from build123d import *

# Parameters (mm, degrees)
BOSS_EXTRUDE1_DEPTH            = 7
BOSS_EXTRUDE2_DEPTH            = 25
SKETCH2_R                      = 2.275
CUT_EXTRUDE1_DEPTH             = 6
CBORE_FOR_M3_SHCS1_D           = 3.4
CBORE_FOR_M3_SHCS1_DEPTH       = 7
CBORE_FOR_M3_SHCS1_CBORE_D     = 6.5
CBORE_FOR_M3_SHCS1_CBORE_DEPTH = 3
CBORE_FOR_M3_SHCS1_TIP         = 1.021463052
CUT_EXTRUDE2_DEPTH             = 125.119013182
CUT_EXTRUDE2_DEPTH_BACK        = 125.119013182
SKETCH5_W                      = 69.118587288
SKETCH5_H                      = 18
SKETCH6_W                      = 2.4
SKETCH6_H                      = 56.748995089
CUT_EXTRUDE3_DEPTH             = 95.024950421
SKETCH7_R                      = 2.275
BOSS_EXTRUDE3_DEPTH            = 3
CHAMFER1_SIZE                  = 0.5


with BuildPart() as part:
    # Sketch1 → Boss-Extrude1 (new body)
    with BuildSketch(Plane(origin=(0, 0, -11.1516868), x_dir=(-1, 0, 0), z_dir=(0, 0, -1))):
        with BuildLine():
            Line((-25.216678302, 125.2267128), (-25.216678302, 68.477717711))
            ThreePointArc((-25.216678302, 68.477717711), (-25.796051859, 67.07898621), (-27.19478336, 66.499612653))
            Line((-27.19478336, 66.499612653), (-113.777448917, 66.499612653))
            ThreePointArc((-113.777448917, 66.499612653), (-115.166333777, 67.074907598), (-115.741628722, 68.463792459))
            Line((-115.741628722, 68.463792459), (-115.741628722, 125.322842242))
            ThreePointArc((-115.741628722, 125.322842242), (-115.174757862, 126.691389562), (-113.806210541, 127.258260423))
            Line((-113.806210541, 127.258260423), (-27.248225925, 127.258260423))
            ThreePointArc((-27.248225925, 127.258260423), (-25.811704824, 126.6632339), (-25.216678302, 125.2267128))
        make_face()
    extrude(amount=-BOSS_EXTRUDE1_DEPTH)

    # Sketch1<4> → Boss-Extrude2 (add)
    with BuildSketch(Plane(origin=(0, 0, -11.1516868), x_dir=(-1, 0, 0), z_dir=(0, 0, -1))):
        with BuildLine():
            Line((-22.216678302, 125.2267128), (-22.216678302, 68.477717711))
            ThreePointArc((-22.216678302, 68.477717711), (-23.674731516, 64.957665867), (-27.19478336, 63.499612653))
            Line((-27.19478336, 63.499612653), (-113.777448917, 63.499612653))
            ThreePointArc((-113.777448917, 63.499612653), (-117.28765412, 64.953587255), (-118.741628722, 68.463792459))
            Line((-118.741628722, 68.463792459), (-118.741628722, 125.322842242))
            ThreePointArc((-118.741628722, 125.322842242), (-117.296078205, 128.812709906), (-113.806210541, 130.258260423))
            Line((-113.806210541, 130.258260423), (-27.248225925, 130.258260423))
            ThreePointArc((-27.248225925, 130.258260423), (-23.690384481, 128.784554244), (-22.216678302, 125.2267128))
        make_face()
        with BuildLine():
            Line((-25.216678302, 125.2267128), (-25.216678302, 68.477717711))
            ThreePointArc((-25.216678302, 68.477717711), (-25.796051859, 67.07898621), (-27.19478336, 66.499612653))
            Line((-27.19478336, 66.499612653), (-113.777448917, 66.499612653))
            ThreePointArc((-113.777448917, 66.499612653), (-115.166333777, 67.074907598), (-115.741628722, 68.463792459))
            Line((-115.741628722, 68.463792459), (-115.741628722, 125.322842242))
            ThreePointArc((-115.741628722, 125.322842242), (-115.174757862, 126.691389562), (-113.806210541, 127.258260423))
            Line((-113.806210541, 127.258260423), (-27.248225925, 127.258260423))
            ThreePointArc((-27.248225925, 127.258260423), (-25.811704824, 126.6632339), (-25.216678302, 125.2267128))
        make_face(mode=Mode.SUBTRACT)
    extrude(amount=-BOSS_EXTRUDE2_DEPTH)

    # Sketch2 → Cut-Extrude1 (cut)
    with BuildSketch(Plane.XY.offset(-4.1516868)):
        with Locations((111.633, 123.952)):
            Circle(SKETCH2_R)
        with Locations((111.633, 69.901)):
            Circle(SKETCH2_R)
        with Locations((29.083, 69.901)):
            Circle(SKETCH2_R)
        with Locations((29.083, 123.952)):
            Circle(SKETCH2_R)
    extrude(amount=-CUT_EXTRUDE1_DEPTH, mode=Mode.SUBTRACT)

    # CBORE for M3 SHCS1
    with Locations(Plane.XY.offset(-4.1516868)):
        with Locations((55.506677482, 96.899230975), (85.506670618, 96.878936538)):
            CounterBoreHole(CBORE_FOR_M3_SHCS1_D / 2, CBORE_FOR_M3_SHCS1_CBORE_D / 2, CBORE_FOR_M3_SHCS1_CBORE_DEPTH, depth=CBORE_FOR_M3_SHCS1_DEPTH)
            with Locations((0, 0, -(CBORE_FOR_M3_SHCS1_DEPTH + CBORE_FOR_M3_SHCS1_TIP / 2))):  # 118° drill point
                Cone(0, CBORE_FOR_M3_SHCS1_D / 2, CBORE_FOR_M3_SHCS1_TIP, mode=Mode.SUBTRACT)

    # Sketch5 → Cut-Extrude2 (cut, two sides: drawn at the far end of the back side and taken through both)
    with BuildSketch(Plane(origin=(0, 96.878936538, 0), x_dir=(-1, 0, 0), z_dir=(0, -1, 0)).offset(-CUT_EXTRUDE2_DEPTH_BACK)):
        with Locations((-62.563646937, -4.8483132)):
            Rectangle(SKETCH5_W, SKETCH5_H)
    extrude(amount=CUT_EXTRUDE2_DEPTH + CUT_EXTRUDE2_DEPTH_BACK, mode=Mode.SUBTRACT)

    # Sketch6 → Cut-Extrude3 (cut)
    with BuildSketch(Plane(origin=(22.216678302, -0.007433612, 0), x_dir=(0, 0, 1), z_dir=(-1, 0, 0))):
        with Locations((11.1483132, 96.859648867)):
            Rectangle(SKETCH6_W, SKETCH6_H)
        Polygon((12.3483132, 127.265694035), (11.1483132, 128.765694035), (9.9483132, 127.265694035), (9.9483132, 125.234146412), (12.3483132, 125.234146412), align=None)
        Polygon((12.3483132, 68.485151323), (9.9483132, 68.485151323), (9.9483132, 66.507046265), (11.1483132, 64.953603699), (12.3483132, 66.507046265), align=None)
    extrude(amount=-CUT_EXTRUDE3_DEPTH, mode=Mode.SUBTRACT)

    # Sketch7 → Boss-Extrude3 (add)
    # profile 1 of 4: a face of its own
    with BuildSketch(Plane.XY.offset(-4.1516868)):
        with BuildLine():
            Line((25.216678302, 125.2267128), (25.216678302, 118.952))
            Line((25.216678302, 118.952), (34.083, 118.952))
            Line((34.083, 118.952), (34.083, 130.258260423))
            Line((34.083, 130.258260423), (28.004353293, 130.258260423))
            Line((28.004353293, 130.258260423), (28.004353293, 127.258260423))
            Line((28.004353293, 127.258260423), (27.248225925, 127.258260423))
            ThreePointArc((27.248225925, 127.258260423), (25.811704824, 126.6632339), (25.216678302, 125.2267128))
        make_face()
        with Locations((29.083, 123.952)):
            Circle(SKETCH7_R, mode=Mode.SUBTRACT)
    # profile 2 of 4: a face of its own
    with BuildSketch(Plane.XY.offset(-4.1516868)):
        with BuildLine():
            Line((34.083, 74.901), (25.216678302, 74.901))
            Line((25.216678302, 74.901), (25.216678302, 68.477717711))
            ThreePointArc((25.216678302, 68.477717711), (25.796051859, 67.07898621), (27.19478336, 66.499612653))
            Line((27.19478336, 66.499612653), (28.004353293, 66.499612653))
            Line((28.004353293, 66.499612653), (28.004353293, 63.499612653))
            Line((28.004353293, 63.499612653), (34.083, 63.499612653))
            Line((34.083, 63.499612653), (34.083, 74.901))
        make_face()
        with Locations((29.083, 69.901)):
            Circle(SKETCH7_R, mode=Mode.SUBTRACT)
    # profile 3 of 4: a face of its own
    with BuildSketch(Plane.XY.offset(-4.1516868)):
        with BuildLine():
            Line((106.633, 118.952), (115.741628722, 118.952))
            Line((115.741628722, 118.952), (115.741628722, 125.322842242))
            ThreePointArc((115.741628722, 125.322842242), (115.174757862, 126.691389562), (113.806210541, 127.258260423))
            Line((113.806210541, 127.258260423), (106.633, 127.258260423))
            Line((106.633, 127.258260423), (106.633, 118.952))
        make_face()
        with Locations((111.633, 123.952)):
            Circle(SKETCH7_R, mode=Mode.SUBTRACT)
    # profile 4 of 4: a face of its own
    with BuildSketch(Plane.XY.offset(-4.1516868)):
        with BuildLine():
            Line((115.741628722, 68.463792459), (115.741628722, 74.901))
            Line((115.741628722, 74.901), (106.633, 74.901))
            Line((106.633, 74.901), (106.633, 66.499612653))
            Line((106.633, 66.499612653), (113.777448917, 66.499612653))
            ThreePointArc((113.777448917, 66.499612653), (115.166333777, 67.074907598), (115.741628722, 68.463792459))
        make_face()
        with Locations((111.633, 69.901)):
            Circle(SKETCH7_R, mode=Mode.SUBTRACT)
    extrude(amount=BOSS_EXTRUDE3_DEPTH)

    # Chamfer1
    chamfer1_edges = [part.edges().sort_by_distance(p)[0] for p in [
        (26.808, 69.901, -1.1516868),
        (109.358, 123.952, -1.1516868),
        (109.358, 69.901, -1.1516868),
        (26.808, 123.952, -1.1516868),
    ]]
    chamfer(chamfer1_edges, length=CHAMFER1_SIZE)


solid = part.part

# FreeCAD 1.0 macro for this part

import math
import FreeCAD as App
import Part
import Sketcher
from FreeCAD import Vector


def edges_at(feature, points):
    """Names of the edges that pass closest to the given points."""
    edges = feature.Shape.Edges
    near = lambda p: min(range(len(edges)), key=lambda i: edges[i].distToShape(Part.Vertex(*p))[0])
    return sorted({f"Edge{near(p) + 1}" for p in points})

doc = App.newDocument("Part")
body = doc.addObject("PartDesign::Body", "Body")

sketch1 = doc.addObject("Sketcher::SketchObject", "Sketch")
body.addObject(sketch1)
sketch1.AttachmentSupport = (doc.XY_Plane, [""])
sketch1.MapMode = "FlatFace"
sketch1.AttachmentOffset = App.Placement(Vector(0, 0, -11.151687), App.Rotation())
sketch1.addGeometry([
    Part.LineSegment(Vector(25.2, 68.5, 0), Vector(25.2, 125.2, 0)),
    Part.ArcOfCircle(Part.Circle(Vector(27.2, 125.2, 0), Vector(0, 0, 1), 2), math.radians(90), math.radians(180)),
    Part.LineSegment(Vector(27.2, 127.3, 0), Vector(113.8, 127.3, 0)),
    Part.ArcOfCircle(Part.Circle(Vector(113.8, 125.3, 0), Vector(0, 0, 1), 1.9), math.radians(0), math.radians(90)),
    Part.LineSegment(Vector(115.7, 125.3, 0), Vector(115.7, 68.5, 0)),
    Part.ArcOfCircle(Part.Circle(Vector(113.8, 68.5, 0), Vector(0, 0, 1), 2), math.radians(-90), math.radians(0)),
    Part.LineSegment(Vector(113.8, 66.5, 0), Vector(27.2, 66.5, 0)),
    Part.ArcOfCircle(Part.Circle(Vector(27.2, 68.5, 0), Vector(0, 0, 1), 2), math.radians(180), math.radians(270)),
], False)
sketch1.addConstraint([
    Sketcher.Constraint("Tangent", 0, 2, 1, 2),
    Sketcher.Constraint("Tangent", 1, 1, 2, 1),
    Sketcher.Constraint("Tangent", 2, 2, 3, 2),
    Sketcher.Constraint("Tangent", 3, 1, 4, 1),
    Sketcher.Constraint("Tangent", 4, 2, 5, 2),
    Sketcher.Constraint("Tangent", 5, 1, 6, 1),
    Sketcher.Constraint("Tangent", 6, 2, 7, 2),
    Sketcher.Constraint("Tangent", 7, 1, 0, 1),
    Sketcher.Constraint("Vertical", 0),
    Sketcher.Constraint("Horizontal", 2),
    Sketcher.Constraint("Vertical", 4),
    Sketcher.Constraint("Horizontal", 6),
    Sketcher.Constraint("Radius", 3, 1.935418),
    Sketcher.Constraint("Radius", 5, 1.96418),
    Sketcher.Constraint("Radius", 1, 2.031548),
    Sketcher.Constraint("Radius", 7, 1.978105),
    Sketcher.Constraint("DistanceY", 4, 2, 4, 1, 56.85905),
    Sketcher.Constraint("DistanceX", 2, 1, 2, 2, 86.557985),
    Sketcher.Constraint("DistanceX", -1, 1, 3, 3, 113.806211),
    Sketcher.Constraint("DistanceY", -1, 1, 1, 1, 127.25826),
])
pad1 = doc.addObject("PartDesign::Pad", "Pad")
body.addObject(pad1)
pad1.Profile = sketch1
pad1.Length = 7

sketch2 = doc.addObject("Sketcher::SketchObject", "Sketch001")
body.addObject(sketch2)
sketch2.AttachmentSupport = (doc.XY_Plane, [""])
sketch2.MapMode = "FlatFace"
sketch2.AttachmentOffset = App.Placement(Vector(0, 0, -11.151687), App.Rotation())
sketch2.addGeometry([
    Part.LineSegment(Vector(22.2, 68.5, 0), Vector(22.2, 125.2, 0)),
    Part.ArcOfCircle(Part.Circle(Vector(27.2, 125.2, 0), Vector(0, 0, 1), 5), math.radians(90), math.radians(180)),
    Part.LineSegment(Vector(27.2, 130.3, 0), Vector(113.8, 130.3, 0)),
    Part.ArcOfCircle(Part.Circle(Vector(113.8, 125.3, 0), Vector(0, 0, 1), 4.9), math.radians(0), math.radians(90)),
    Part.LineSegment(Vector(118.7, 125.3, 0), Vector(118.7, 68.5, 0)),
    Part.ArcOfCircle(Part.Circle(Vector(113.8, 68.5, 0), Vector(0, 0, 1), 5), math.radians(-90), math.radians(0)),
    Part.LineSegment(Vector(113.8, 63.5, 0), Vector(27.2, 63.5, 0)),
    Part.ArcOfCircle(Part.Circle(Vector(27.2, 68.5, 0), Vector(0, 0, 1), 5), math.radians(180), math.radians(270)),
    Part.LineSegment(Vector(25.2, 125.2, 0), Vector(25.2, 68.5, 0)),
    Part.ArcOfCircle(Part.Circle(Vector(27.2, 68.5, 0), Vector(0, 0, 1), 2), math.radians(180), math.radians(270)),
    Part.LineSegment(Vector(27.2, 66.5, 0), Vector(113.8, 66.5, 0)),
    Part.ArcOfCircle(Part.Circle(Vector(113.8, 68.5, 0), Vector(0, 0, 1), 2), math.radians(-90), math.radians(0)),
    Part.LineSegment(Vector(115.7, 68.5, 0), Vector(115.7, 125.3, 0)),
    Part.ArcOfCircle(Part.Circle(Vector(113.8, 125.3, 0), Vector(0, 0, 1), 1.9), math.radians(0), math.radians(90)),
    Part.LineSegment(Vector(113.8, 127.3, 0), Vector(27.2, 127.3, 0)),
    Part.ArcOfCircle(Part.Circle(Vector(27.2, 125.2, 0), Vector(0, 0, 1), 2), math.radians(90), math.radians(180)),
], False)
sketch2.addConstraint([
    Sketcher.Constraint("Tangent", 0, 2, 1, 2),
    Sketcher.Constraint("Tangent", 1, 1, 2, 1),
    Sketcher.Constraint("Tangent", 2, 2, 3, 2),
    Sketcher.Constraint("Tangent", 3, 1, 4, 1),
    Sketcher.Constraint("Tangent", 4, 2, 5, 2),
    Sketcher.Constraint("Tangent", 5, 1, 6, 1),
    Sketcher.Constraint("Tangent", 6, 2, 7, 2),
    Sketcher.Constraint("Tangent", 7, 1, 0, 1),
    Sketcher.Constraint("Tangent", 8, 2, 9, 1),
    Sketcher.Constraint("Tangent", 9, 2, 10, 1),
    Sketcher.Constraint("Tangent", 10, 2, 11, 1),
    Sketcher.Constraint("Tangent", 11, 2, 12, 1),
    Sketcher.Constraint("Tangent", 12, 2, 13, 1),
    Sketcher.Constraint("Tangent", 13, 2, 14, 1),
    Sketcher.Constraint("Tangent", 14, 2, 15, 1),
    Sketcher.Constraint("Tangent", 15, 2, 8, 1),
    Sketcher.Constraint("Vertical", 0),
    Sketcher.Constraint("Horizontal", 2),
    Sketcher.Constraint("Vertical", 4),
    Sketcher.Constraint("Horizontal", 6),
    Sketcher.Constraint("Vertical", 8),
    Sketcher.Constraint("Horizontal", 10),
    Sketcher.Constraint("Vertical", 12),
    Sketcher.Constraint("Horizontal", 14),
    Sketcher.Constraint("Coincident", 9, 3, 7, 3),
    Sketcher.Constraint("Coincident", 11, 3, 5, 3),
    Sketcher.Constraint("Coincident", 13, 3, 3, 3),
    Sketcher.Constraint("Horizontal", 15, 3, 0, 2),
    Sketcher.Constraint("DistanceX", 7, 1, 8, 2, 3.0),
    Sketcher.Constraint("Radius", 3, 4.935418),
    Sketcher.Constraint("Radius", 5, 4.96418),
    Sketcher.Constraint("Radius", 1, 5.031548),
    Sketcher.Constraint("Radius", 7, 4.978105),
    Sketcher.Constraint("DistanceY", 4, 2, 4, 1, 56.85905),
    Sketcher.Constraint("DistanceX", 2, 1, 2, 2, 86.557985),
    Sketcher.Constraint("DistanceX", -1, 1, 3, 3, 113.806211),
    Sketcher.Constraint("DistanceY", -1, 1, 1, 1, 130.25826),
])
pad2 = doc.addObject("PartDesign::Pad", "Pad001")
body.addObject(pad2)
pad2.Profile = sketch2
pad2.Length = 25

sketch3 = doc.addObject("Sketcher::SketchObject", "Sketch002")
body.addObject(sketch3)
sketch3.AttachmentSupport = (doc.XY_Plane, [""])
sketch3.MapMode = "FlatFace"
sketch3.AttachmentOffset = App.Placement(Vector(0, 0, -4.151687), App.Rotation())
sketch3.addGeometry([
    Part.Circle(Vector(111.6, 124, 0), Vector(0, 0, 1), 2.3),
    Part.Circle(Vector(111.6, 69.9, 0), Vector(0, 0, 1), 2.3),
    Part.Circle(Vector(29.1, 69.9, 0), Vector(0, 0, 1), 2.3),
    Part.Circle(Vector(29.1, 124, 0), Vector(0, 0, 1), 2.3),
], False)
sketch3.addConstraint([
    Sketcher.Constraint("Equal", 0, 1),
    Sketcher.Constraint("Equal", 1, 2),
    Sketcher.Constraint("Equal", 2, 3),
    Sketcher.Constraint("Horizontal", 1, 3, 2, 3),
    Sketcher.Constraint("Horizontal", 0, 3, 3, 3),
    Sketcher.Constraint("Vertical", 0, 3, 1, 3),
    Sketcher.Constraint("Vertical", 2, 3, 3, 3),
    Sketcher.Constraint("Diameter", 0, 4.55),
    Sketcher.Constraint("DistanceX", 2, 3, 1, 3, 82.55),
    Sketcher.Constraint("DistanceX", -1, 1, 0, 3, 111.633),
    Sketcher.Constraint("DistanceY", -1, 1, 0, 3, 123.952),
    Sketcher.Constraint("DistanceY", -1, 1, 1, 3, 69.901),
])
pocket1 = doc.addObject("PartDesign::Pocket", "Pocket")
body.addObject(pocket1)
pocket1.Profile = sketch3
pocket1.Length = 6

sketch4 = doc.addObject("Sketcher::SketchObject", "Sketch003")
body.addObject(sketch4)
sketch4.AttachmentSupport = (doc.XY_Plane, [""])
sketch4.MapMode = "FlatFace"
sketch4.AttachmentOffset = App.Placement(Vector(0, 0, -4.151687), App.Rotation())
sketch4.addGeometry([
    Part.Circle(Vector(55.5, 96.9, 0), Vector(0, 0, 1), 1.7),
    Part.Circle(Vector(85.5, 96.9, 0), Vector(0, 0, 1), 1.7),
], False)
sketch4.addConstraint([
    Sketcher.Constraint("Equal", 0, 1),
    Sketcher.Constraint("Diameter", 0, 3.4),
    Sketcher.Constraint("DistanceY", -1, 1, 0, 3, 96.899231),
    Sketcher.Constraint("DistanceX", -1, 1, 1, 3, 85.506671),
    Sketcher.Constraint("DistanceX", -1, 1, 0, 3, 55.506677),
    Sketcher.Constraint("DistanceY", -1, 1, 1, 3, 96.878937),
])
doc.recompute()
hole = doc.addObject("PartDesign::Hole", "Hole")
body.addObject(hole)
hole.Profile = sketch4
hole.ThreadType = "None"
hole.Diameter = 3.4
hole.DepthType = "Dimension"
hole.Depth = 7
hole.DrillPoint = "Angled"
hole.DrillPointAngle = 118
hole.HoleCutType = "Counterbore"
hole.HoleCutDiameter = 6.5
hole.HoleCutDepth = 3

sketch5 = doc.addObject("Sketcher::SketchObject", "Sketch004")
body.addObject(sketch5)
sketch5.AttachmentSupport = (doc.XZ_Plane, [""])
sketch5.MapMode = "FlatFace"
sketch5.AttachmentOffset = App.Placement(Vector(0, 0, -96.878937), App.Rotation())
sketch5.addGeometry([
    Part.LineSegment(Vector(97, -4, 0), Vector(97, 14, 0)),
    Part.LineSegment(Vector(97, 14, 0), Vector(28, 14, 0)),
    Part.LineSegment(Vector(28, 14, 0), Vector(28, -4, 0)),
    Part.LineSegment(Vector(28, -4, 0), Vector(97, -4, 0)),
], False)
sketch5.addConstraint([
    Sketcher.Constraint("Coincident", 0, 2, 1, 1),
    Sketcher.Constraint("Coincident", 1, 2, 2, 1),
    Sketcher.Constraint("Coincident", 2, 2, 3, 1),
    Sketcher.Constraint("Coincident", 3, 2, 0, 1),
    Sketcher.Constraint("Vertical", 0),
    Sketcher.Constraint("Horizontal", 1),
    Sketcher.Constraint("Vertical", 2),
    Sketcher.Constraint("Horizontal", 3),
    Sketcher.Constraint("DistanceY", 0, 1, 0, 2, 18.0),
    Sketcher.Constraint("DistanceX", 1, 2, 1, 1, 69.118587),
    Sketcher.Constraint("DistanceX", -1, 1, 0, 2, 97.122941),
    Sketcher.Constraint("DistanceY", -1, 1, 0, 2, 13.848313),
])
pocket2 = doc.addObject("PartDesign::Pocket", "Pocket001")
body.addObject(pocket2)
pocket2.Profile = sketch5
pocket2.Type = "ThroughAll"
pocket2.Midplane = True

sketch6 = doc.addObject("Sketcher::SketchObject", "Sketch005")
body.addObject(sketch6)
sketch6.AttachmentSupport = (doc.YZ_Plane, [""])
sketch6.MapMode = "FlatFace"
sketch6.AttachmentOffset = App.Placement(Vector(0, 0, 22.216678), App.Rotation())
sketch6.addGeometry([
    Part.LineSegment(Vector(127.3, 12.3, 0), Vector(128.8, 11.1, 0)),
    Part.LineSegment(Vector(128.8, 11.1, 0), Vector(127.3, 9.9, 0)),
    Part.LineSegment(Vector(127.3, 9.9, 0), Vector(66.5, 9.9, 0)),
    Part.LineSegment(Vector(66.5, 9.9, 0), Vector(64.9, 11.1, 0)),
    Part.LineSegment(Vector(64.9, 11.1, 0), Vector(66.5, 12.3, 0)),
    Part.LineSegment(Vector(66.5, 12.3, 0), Vector(127.3, 12.3, 0)),
], False)
sketch6.addConstraint([
    Sketcher.Constraint("Coincident", 0, 2, 1, 1),
    Sketcher.Constraint("Coincident", 1, 2, 2, 1),
    Sketcher.Constraint("Coincident", 2, 2, 3, 1),
    Sketcher.Constraint("Coincident", 3, 2, 4, 1),
    Sketcher.Constraint("Coincident", 4, 2, 5, 1),
    Sketcher.Constraint("Coincident", 5, 2, 0, 1),
    Sketcher.Constraint("Horizontal", 2),
    Sketcher.Constraint("Horizontal", 5),
    Sketcher.Constraint("Horizontal", 0, 2, 3, 2),
    Sketcher.Constraint("Vertical", 2, 2, 4, 2),
    Sketcher.Constraint("Vertical", 1, 2, 5, 2),
    Sketcher.Constraint("Equal", 0, 1),
    Sketcher.Constraint("DistanceX", 1, 2, 0, 2, 1.5),
    Sketcher.Constraint("DistanceY", 1, 2, 0, 2, 1.2),
    Sketcher.Constraint("DistanceX", 2, 2, 2, 1, 60.758648),
    Sketcher.Constraint("DistanceX", -1, 1, 0, 2, 128.75826),
    Sketcher.Constraint("DistanceX", -1, 1, 3, 2, 64.94617),
    Sketcher.Constraint("DistanceY", -1, 1, 0, 2, 11.148313),
])
pocket3 = doc.addObject("PartDesign::Pocket", "Pocket002")
body.addObject(pocket3)
pocket3.Profile = sketch6
pocket3.Length = 95.02495
pocket3.Reversed = True

sketch7 = doc.addObject("Sketcher::SketchObject", "Sketch006")
body.addObject(sketch7)
sketch7.AttachmentSupport = (doc.XY_Plane, [""])
sketch7.MapMode = "FlatFace"
sketch7.AttachmentOffset = App.Placement(Vector(0, 0, -4.151687), App.Rotation())
sketch7.addGeometry([
    Part.LineSegment(Vector(25.2, 125.2, 0), Vector(25.2, 119, 0)),
    Part.LineSegment(Vector(25.2, 119, 0), Vector(34.1, 119, 0)),
    Part.LineSegment(Vector(34.1, 119, 0), Vector(34.1, 130.3, 0)),
    Part.LineSegment(Vector(34.1, 130.3, 0), Vector(28, 130.3, 0)),
    Part.LineSegment(Vector(28, 130.3, 0), Vector(28, 127.3, 0)),
    Part.LineSegment(Vector(28, 127.3, 0), Vector(27.2, 127.3, 0)),
    Part.ArcOfCircle(Part.Circle(Vector(27.2, 125.2, 0), Vector(0, 0, 1), 2), math.radians(90), math.radians(180)),
    Part.Circle(Vector(29.1, 124, 0), Vector(0, 0, 1), 2.3),
    Part.LineSegment(Vector(34.1, 74.9, 0), Vector(25.2, 74.9, 0)),
    Part.LineSegment(Vector(25.2, 74.9, 0), Vector(25.2, 68.5, 0)),
    Part.ArcOfCircle(Part.Circle(Vector(27.2, 68.5, 0), Vector(0, 0, 1), 2), math.radians(180), math.radians(270)),
    Part.LineSegment(Vector(27.2, 66.5, 0), Vector(28, 66.5, 0)),
    Part.LineSegment(Vector(28, 66.5, 0), Vector(28, 63.5, 0)),
    Part.LineSegment(Vector(28, 63.5, 0), Vector(34.1, 63.5, 0)),
    Part.LineSegment(Vector(34.1, 63.5, 0), Vector(34.1, 74.9, 0)),
    Part.Circle(Vector(29.1, 69.9, 0), Vector(0, 0, 1), 2.3),
    Part.LineSegment(Vector(106.6, 119, 0), Vector(115.7, 119, 0)),
    Part.LineSegment(Vector(115.7, 119, 0), Vector(115.7, 125.3, 0)),
    Part.ArcOfCircle(Part.Circle(Vector(113.8, 125.3, 0), Vector(0, 0, 1), 1.9), math.radians(0), math.radians(90)),
    Part.LineSegment(Vector(113.8, 127.3, 0), Vector(106.6, 127.3, 0)),
    Part.LineSegment(Vector(106.6, 127.3, 0), Vector(106.6, 119, 0)),
    Part.Circle(Vector(111.6, 124, 0), Vector(0, 0, 1), 2.3),
    Part.LineSegment(Vector(115.7, 68.5, 0), Vector(115.7, 74.9, 0)),
    Part.LineSegment(Vector(115.7, 74.9, 0), Vector(106.6, 74.9, 0)),
    Part.LineSegment(Vector(106.6, 74.9, 0), Vector(106.6, 66.5, 0)),
    Part.LineSegment(Vector(106.6, 66.5, 0), Vector(113.8, 66.5, 0)),
    Part.ArcOfCircle(Part.Circle(Vector(113.8, 68.5, 0), Vector(0, 0, 1), 2), math.radians(-90), math.radians(0)),
    Part.Circle(Vector(111.6, 69.9, 0), Vector(0, 0, 1), 2.3),
], False)
sketch7.addConstraint([
    Sketcher.Constraint("Coincident", 0, 2, 1, 1),
    Sketcher.Constraint("Coincident", 1, 2, 2, 1),
    Sketcher.Constraint("Coincident", 2, 2, 3, 1),
    Sketcher.Constraint("Coincident", 3, 2, 4, 1),
    Sketcher.Constraint("Coincident", 4, 2, 5, 1),
    Sketcher.Constraint("Tangent", 5, 2, 6, 1),
    Sketcher.Constraint("Tangent", 6, 2, 0, 1),
    Sketcher.Constraint("Coincident", 8, 2, 9, 1),
    Sketcher.Constraint("Tangent", 9, 2, 10, 1),
    Sketcher.Constraint("Tangent", 10, 2, 11, 1),
    Sketcher.Constraint("Coincident", 11, 2, 12, 1),
    Sketcher.Constraint("Coincident", 12, 2, 13, 1),
    Sketcher.Constraint("Coincident", 13, 2, 14, 1),
    Sketcher.Constraint("Coincident", 14, 2, 8, 1),
    Sketcher.Constraint("Coincident", 16, 2, 17, 1),
    Sketcher.Constraint("Tangent", 17, 2, 18, 1),
    Sketcher.Constraint("Tangent", 18, 2, 19, 1),
    Sketcher.Constraint("Coincident", 19, 2, 20, 1),
    Sketcher.Constraint("Coincident", 20, 2, 16, 1),
    Sketcher.Constraint("Coincident", 22, 2, 23, 1),
    Sketcher.Constraint("Coincident", 23, 2, 24, 1),
    Sketcher.Constraint("Coincident", 24, 2, 25, 1),
    Sketcher.Constraint("Tangent", 25, 2, 26, 1),
    Sketcher.Constraint("Tangent", 26, 2, 22, 1),
    Sketcher.Constraint("Vertical", 0),
    Sketcher.Constraint("Horizontal", 1),
    Sketcher.Constraint("Vertical", 2),
    Sketcher.Constraint("Horizontal", 3),
    Sketcher.Constraint("Vertical", 4),
    Sketcher.Constraint("Horizontal", 5),
    Sketcher.Constraint("Horizontal", 8),
    Sketcher.Constraint("Vertical", 9),
    Sketcher.Constraint("Horizontal", 11),
    Sketcher.Constraint("Vertical", 12),
    Sketcher.Constraint("Horizontal", 13),
    Sketcher.Constraint("Vertical", 14),
    Sketcher.Constraint("Horizontal", 16),
    Sketcher.Constraint("Vertical", 17),
    Sketcher.Constraint("Horizontal", 19),
    Sketcher.Constraint("Vertical", 20),
    Sketcher.Constraint("Vertical", 22),
    Sketcher.Constraint("Horizontal", 23),
    Sketcher.Constraint("Vertical", 24),
    Sketcher.Constraint("Horizontal", 25),
    Sketcher.Constraint("Equal", 7, 15),
    Sketcher.Constraint("Equal", 15, 21),
    Sketcher.Constraint("Equal", 21, 27),
    Sketcher.Constraint("Horizontal", 7, 3, 21, 3),
    Sketcher.Constraint("Horizontal", 15, 3, 27, 3),
    Sketcher.Constraint("Horizontal", 1, 2, 16, 2),
    Sketcher.Constraint("Horizontal", 5, 2, 18, 2),
    Sketcher.Constraint("Horizontal", 14, 2, 22, 2),
    Sketcher.Constraint("Horizontal", 11, 2, 24, 2),
    Sketcher.Constraint("Vertical", 7, 3, 15, 3),
    Sketcher.Constraint("Vertical", 21, 3, 27, 3),
    Sketcher.Constraint("Vertical", 6, 2, 8, 2),
    Sketcher.Constraint("Vertical", 4, 2, 11, 2),
    Sketcher.Constraint("Vertical", 2, 2, 13, 2),
    Sketcher.Constraint("Vertical", 17, 2, 22, 2),
    Sketcher.Constraint("Vertical", 20, 2, 23, 2),
    Sketcher.Constraint("Equal", 4, 12),
    Sketcher.Constraint("Diameter", 7, 4.55),
    Sketcher.Constraint("DistanceY", 4, 2, 4, 1, 3.0),
    Sketcher.Constraint("DistanceY", 0, 2, 7, 3, 5.0),
    Sketcher.Constraint("DistanceX", 7, 3, 1, 2, 5.0),
    Sketcher.Constraint("DistanceY", 15, 3, 8, 2, 5.0),
    Sketcher.Constraint("DistanceX", 19, 2, 21, 3, 5.0),
    Sketcher.Constraint("Radius", 18, 1.935418),
    Sketcher.Constraint("Radius", 26, 1.96418),
    Sketcher.Constraint("DistanceX", 7, 3, 21, 3, 82.55),
    Sketcher.Constraint("DistanceX", -1, 1, 7, 3, 29.083),
    Sketcher.Constraint("DistanceY", -1, 1, 7, 3, 123.952),
    Sketcher.Constraint("DistanceY", -1, 1, 15, 3, 69.901),
    Sketcher.Constraint("Radius", 6, 2.031548),
    Sketcher.Constraint("Radius", 10, 1.978105),
    Sketcher.Constraint("DistanceX", 1, 1, 1, 2, 8.866322),
    Sketcher.Constraint("DistanceX", 11, 1, 11, 2, 0.80957),
    Sketcher.Constraint("DistanceX", 16, 1, 16, 2, 9.108629),
    Sketcher.Constraint("DistanceY", 2, 1, 2, 2, 11.30626),
    Sketcher.Constraint("DistanceY", 9, 2, 9, 1, 6.423282),
])
pad3 = doc.addObject("PartDesign::Pad", "Pad002")
body.addObject(pad3)
pad3.Profile = sketch7
pad3.Length = 3
doc.recompute()

chamfer = doc.addObject("PartDesign::Chamfer", "Chamfer")
body.addObject(chamfer)
chamfer.Base = (pad3, edges_at(pad3, [
    (26.808, 69.901, -1.152),
    (109.358, 123.952, -1.152),
    (109.358, 69.901, -1.152),
    (26.808, 123.952, -1.152),
]))
chamfer.Size = 0.5

doc.recompute()
